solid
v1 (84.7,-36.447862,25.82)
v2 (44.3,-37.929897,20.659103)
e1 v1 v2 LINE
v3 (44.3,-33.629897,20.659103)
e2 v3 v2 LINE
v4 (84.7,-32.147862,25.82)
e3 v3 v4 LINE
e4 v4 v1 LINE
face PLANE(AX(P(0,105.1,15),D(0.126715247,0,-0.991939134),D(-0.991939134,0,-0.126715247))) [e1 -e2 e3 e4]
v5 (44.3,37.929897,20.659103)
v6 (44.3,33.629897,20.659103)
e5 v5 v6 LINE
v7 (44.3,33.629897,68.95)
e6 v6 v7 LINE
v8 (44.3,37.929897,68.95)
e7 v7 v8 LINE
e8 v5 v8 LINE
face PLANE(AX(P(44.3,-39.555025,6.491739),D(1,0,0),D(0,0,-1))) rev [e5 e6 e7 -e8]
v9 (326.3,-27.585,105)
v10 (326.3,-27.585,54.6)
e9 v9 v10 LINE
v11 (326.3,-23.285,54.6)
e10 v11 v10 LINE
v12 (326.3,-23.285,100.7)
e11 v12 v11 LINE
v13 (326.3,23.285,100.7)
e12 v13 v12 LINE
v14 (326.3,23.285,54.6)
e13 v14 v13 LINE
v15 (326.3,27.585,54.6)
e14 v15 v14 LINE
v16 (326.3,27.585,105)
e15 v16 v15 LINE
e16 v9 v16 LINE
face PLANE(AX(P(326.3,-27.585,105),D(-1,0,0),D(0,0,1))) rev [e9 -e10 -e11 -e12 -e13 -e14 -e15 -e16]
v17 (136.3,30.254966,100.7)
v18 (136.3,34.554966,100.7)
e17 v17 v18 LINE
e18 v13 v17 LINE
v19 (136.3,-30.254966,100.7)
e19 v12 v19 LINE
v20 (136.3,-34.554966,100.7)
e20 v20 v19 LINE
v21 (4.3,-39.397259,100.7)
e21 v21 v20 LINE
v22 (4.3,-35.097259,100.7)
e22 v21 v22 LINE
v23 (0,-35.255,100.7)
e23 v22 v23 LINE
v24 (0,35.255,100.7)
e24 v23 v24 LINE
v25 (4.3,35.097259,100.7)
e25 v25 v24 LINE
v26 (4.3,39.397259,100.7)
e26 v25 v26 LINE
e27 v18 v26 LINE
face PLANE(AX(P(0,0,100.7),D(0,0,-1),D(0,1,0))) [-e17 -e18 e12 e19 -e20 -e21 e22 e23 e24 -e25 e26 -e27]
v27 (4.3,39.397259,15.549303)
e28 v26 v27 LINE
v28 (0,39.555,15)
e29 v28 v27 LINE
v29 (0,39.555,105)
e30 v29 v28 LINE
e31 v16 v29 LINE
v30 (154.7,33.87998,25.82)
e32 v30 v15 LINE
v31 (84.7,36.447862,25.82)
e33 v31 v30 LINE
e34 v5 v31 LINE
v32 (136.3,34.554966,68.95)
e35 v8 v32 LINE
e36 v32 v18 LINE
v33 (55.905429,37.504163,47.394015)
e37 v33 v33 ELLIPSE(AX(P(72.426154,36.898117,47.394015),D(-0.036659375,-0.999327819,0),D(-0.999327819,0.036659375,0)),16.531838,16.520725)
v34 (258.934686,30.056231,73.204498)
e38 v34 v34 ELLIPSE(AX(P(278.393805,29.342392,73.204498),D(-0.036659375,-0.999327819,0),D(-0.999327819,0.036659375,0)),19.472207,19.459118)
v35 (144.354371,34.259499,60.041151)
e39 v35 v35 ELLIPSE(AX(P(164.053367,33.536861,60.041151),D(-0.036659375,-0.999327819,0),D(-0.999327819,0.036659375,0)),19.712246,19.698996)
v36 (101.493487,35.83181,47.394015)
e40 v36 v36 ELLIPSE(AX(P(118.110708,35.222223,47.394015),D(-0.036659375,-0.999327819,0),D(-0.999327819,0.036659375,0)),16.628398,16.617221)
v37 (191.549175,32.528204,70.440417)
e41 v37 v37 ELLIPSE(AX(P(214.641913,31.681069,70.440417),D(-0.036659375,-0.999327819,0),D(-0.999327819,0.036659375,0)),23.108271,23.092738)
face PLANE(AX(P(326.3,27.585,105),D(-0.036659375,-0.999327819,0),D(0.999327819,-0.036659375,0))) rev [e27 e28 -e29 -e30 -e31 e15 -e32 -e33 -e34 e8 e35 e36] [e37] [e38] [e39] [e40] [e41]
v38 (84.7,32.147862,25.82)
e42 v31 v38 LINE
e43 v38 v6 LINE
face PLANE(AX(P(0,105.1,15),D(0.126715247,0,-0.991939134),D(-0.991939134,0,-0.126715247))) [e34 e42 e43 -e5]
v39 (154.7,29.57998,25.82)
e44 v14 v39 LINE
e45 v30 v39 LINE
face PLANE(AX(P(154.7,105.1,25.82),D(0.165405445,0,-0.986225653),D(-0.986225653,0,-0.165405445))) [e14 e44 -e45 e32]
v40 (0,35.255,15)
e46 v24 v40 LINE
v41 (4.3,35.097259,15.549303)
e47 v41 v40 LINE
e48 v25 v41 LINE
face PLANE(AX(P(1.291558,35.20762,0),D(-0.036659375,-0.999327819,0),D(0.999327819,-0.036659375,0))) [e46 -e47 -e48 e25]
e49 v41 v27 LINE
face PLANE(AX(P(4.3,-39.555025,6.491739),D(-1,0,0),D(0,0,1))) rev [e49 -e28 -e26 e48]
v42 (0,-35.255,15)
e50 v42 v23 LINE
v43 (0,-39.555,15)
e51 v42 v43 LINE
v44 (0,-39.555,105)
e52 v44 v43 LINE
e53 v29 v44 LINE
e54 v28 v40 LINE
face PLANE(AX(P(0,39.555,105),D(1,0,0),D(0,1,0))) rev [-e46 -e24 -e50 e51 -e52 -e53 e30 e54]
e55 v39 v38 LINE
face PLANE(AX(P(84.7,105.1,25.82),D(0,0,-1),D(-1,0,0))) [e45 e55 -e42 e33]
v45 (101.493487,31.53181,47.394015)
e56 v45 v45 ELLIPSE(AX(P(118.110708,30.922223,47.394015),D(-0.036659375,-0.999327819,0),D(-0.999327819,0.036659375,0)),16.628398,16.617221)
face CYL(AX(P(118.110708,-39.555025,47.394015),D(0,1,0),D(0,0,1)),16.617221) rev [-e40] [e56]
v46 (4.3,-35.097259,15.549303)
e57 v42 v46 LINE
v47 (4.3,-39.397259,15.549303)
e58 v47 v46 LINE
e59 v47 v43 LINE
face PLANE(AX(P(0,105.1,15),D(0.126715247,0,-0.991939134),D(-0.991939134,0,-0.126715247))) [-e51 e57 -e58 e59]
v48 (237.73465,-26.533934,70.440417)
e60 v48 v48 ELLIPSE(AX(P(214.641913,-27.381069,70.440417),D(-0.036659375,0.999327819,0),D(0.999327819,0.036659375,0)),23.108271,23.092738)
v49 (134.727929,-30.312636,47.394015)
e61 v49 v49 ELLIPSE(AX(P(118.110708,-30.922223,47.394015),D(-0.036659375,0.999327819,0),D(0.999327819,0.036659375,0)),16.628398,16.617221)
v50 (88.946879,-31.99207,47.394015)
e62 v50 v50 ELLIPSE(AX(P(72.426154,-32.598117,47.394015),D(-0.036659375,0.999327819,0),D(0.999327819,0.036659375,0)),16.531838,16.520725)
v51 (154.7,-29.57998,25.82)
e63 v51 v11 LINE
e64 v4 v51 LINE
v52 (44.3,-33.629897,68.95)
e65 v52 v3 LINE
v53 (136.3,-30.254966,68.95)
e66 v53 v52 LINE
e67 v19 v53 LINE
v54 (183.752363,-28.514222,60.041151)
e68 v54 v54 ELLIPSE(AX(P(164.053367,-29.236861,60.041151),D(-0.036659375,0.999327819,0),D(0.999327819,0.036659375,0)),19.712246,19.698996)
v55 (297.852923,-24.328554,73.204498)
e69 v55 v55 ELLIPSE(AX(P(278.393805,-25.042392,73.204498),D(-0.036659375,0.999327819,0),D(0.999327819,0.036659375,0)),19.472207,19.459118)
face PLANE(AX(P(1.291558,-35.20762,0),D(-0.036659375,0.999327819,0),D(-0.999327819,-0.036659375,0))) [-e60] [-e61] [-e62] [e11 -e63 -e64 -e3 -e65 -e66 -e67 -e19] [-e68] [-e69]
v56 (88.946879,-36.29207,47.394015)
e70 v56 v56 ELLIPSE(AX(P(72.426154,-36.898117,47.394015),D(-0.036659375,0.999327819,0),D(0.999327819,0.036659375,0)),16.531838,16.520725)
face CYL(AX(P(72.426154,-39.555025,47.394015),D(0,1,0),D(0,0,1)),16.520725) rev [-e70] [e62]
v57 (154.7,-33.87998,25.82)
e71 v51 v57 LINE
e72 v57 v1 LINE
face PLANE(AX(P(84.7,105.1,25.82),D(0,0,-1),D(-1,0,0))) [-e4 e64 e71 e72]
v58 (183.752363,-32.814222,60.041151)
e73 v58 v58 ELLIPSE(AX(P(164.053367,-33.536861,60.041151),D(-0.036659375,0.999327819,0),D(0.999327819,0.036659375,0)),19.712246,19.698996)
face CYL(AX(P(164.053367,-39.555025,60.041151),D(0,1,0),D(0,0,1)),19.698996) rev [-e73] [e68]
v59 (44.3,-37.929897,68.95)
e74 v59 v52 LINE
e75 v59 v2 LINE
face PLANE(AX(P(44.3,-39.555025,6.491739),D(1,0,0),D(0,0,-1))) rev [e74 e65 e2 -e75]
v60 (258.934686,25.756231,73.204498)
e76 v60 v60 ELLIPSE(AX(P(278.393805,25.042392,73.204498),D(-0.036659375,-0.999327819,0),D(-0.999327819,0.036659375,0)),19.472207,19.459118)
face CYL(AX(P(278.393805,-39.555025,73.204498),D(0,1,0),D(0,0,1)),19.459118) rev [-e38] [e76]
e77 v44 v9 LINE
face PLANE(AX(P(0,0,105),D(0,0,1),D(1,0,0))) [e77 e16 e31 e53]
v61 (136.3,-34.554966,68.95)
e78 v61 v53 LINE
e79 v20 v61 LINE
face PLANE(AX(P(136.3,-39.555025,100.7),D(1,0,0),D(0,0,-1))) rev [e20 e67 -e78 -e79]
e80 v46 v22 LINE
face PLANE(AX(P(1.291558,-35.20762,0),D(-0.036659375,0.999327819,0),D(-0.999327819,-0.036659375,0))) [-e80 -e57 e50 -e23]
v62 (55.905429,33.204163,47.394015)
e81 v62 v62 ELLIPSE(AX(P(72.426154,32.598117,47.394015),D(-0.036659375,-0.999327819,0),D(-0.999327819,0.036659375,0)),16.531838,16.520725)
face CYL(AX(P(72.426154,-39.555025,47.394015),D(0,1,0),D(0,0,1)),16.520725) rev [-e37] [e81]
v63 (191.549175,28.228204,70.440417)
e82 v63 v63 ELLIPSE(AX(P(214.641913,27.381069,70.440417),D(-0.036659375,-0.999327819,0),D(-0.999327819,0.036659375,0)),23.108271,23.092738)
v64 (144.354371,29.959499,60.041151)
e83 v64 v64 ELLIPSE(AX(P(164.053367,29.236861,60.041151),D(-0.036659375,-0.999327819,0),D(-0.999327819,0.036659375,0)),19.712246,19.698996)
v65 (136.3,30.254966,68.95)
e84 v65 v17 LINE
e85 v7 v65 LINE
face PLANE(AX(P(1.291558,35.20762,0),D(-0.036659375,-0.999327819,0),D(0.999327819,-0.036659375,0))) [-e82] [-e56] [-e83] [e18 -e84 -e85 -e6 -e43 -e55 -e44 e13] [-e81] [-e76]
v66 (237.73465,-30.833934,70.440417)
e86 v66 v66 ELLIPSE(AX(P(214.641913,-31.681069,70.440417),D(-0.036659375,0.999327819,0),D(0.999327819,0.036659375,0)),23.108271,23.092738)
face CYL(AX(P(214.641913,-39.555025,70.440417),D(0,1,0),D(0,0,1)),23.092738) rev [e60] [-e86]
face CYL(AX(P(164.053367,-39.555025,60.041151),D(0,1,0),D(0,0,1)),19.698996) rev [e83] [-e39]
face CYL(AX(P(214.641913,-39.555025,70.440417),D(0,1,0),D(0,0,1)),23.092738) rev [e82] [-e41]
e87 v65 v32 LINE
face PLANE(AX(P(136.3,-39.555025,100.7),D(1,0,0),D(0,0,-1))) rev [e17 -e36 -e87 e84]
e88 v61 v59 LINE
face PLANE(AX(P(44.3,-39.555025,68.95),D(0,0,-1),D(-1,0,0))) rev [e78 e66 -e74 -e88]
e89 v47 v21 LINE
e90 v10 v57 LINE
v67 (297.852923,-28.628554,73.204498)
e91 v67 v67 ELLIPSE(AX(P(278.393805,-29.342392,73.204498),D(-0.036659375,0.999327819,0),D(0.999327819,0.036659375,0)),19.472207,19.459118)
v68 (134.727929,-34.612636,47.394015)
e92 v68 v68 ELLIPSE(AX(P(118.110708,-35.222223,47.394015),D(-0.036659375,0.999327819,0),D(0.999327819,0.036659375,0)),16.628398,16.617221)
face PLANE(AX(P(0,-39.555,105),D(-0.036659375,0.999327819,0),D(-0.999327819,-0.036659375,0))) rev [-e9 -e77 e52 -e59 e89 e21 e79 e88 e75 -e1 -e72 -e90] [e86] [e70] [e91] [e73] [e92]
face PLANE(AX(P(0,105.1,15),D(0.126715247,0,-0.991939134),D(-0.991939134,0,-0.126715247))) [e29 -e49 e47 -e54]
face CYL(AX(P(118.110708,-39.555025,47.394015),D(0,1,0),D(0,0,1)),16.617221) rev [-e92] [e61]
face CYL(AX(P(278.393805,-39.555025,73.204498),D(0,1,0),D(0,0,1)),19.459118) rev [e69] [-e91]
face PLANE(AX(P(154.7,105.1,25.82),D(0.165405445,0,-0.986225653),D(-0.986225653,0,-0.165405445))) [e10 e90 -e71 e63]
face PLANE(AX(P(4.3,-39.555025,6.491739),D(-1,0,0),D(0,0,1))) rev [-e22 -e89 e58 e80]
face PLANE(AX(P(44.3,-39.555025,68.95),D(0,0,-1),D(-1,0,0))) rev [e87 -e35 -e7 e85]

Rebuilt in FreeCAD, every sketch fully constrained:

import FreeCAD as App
import Part
import Sketcher

V = App.Vector


def add_polygon(sketch, points):
    """Adds a closed chain of lines whose ends are joined by coincident constraints."""
    first, n = sketch.GeometryCount, len(points)
    for a, b in zip(points, points[1:] + points[:1]):
        sketch.addGeometry(Part.LineSegment(App.Vector(*a, 0), App.Vector(*b, 0)), False)
    for i in range(n):
        sketch.addConstraint(Sketcher.Constraint("Coincident", first + i, 2, first + (i + 1) % n, 1))

doc = App.newDocument("Part")
body = doc.addObject("PartDesign::Body", "Body")

# Sketch on XY plane
sketch1 = doc.addObject("Sketcher::SketchObject", "Sketch")
body.addObject(sketch1)
sketch1.AttachmentSupport = (doc.XY_Plane, [""])
sketch1.MapMode = "FlatFace"
add_polygon(sketch1, [(0, 40), (0, -40), (326, -28), (326, 28)])  # lines 0-3
sketch1.addConstraint([
    Sketcher.Constraint("Vertical", 0),
    Sketcher.Constraint("Vertical", 2),
    Sketcher.Constraint("Symmetric", 0, 2, 3, 2, -1, 1),
    Sketcher.Constraint("Equal", 1, 3),
    Sketcher.Constraint("DistanceY", 0, 2, 0, 1, 79.11),
    Sketcher.Constraint("DistanceY", 2, 1, 2, 2, 55.17),
    Sketcher.Constraint("DistanceX", -1, 1, 1, 2, 326.3),
])
pad1 = doc.addObject("PartDesign::Pad", "Pad")
body.addObject(pad1)
pad1.Profile = sketch1
pad1.Length = 105

# Sketch on XZ plane
sketch2 = doc.addObject("Sketcher::SketchObject", "Sketch001")
body.addObject(sketch2)
sketch2.AttachmentSupport = (doc.XZ_Plane, [""])
sketch2.MapMode = "FlatFace"
add_polygon(sketch2, [(0, 15), (85, 26), (155, 26), (326, 55), (326, -36), (0, -41)])  # lines 0-5
sketch2.addConstraint([
    Sketcher.Constraint("Horizontal", 1),
    Sketcher.Constraint("Vertical", 3),
    Sketcher.Constraint("Vertical", 5),
    Sketcher.Constraint("PointOnObject", 4, 2, -2),
    Sketcher.Constraint("DistanceX", 1, 1, 1, 2, 70.0),
    Sketcher.Constraint("DistanceY", -1, 1, 5, 2, 15.0),
    Sketcher.Constraint("DistanceX", -1, 1, 0, 2, 84.7),
    Sketcher.Constraint("DistanceX", -1, 1, 2, 2, 326.3),
    Sketcher.Constraint("DistanceY", -1, 1, 2, 2, 54.6),
    Sketcher.Constraint("DistanceY", -1, 1, 0, 2, 25.82),
    Sketcher.Constraint("DistanceY", 3, 2, 3, 1, 90.679012),
    Sketcher.Constraint("DistanceY", 5, 1, 5, 2, 56.11386),
])
pocket1 = doc.addObject("PartDesign::Pocket", "Pocket")
body.addObject(pocket1)
pocket1.Profile = sketch2
pocket1.Type = "ThroughAll"
pocket1.Midplane = True

# Sketch on YZ plane
sketch3 = doc.addObject("Sketcher::SketchObject", "Sketch002")
body.addObject(sketch3)
sketch3.AttachmentSupport = (doc.YZ_Plane, [""])
sketch3.MapMode = "FlatFace"
sketch3.AttachmentOffset = App.Placement(V(0, 0, 326.3), App.Rotation())
add_polygon(sketch3, [(23, 101), (-23, 101), (-23, 23), (23, 23)])  # lines 0-3
sketch3.addConstraint([
    Sketcher.Constraint("Horizontal", 0),
    Sketcher.Constraint("Vertical", 1),
    Sketcher.Constraint("Horizontal", 2),
    Sketcher.Constraint("Vertical", 3),
    Sketcher.Constraint("DistanceX", 0, 2, 0, 1, 46.57),
    Sketcher.Constraint("DistanceY", -1, 1, 0, 2, 100.7),
    Sketcher.Constraint("DistanceX", 0, 2, -1, 1, 23.285),
    Sketcher.Constraint("DistanceY", 1, 2, 1, 1, 78.145476),
])

# Sketch on YZ plane
sketch4 = doc.addObject("Sketcher::SketchObject", "Sketch003")
body.addObject(sketch4)
sketch4.AttachmentSupport = (doc.YZ_Plane, [""])
sketch4.MapMode = "FlatFace"
add_polygon(sketch4, [(35, -11), (-35, -11), (-35, 101), (35, 101)])  # lines 0-3
sketch4.addConstraint([
    Sketcher.Constraint("Horizontal", 0),
    Sketcher.Constraint("Vertical", 1),
    Sketcher.Constraint("Horizontal", 2),
    Sketcher.Constraint("Vertical", 3),
    Sketcher.Constraint("DistanceX", 0, 2, 0, 1, 70.51),
    Sketcher.Constraint("DistanceY", -1, 1, 1, 2, 100.7),
    Sketcher.Constraint("DistanceX", 0, 2, -1, 1, 35.255),
    Sketcher.Constraint("DistanceY", 1, 1, 1, 2, 111.656528),
])

subtractiveloft = doc.addObject("PartDesign::SubtractiveLoft", "SubtractiveLoft")
body.addObject(subtractiveloft)
subtractiveloft.Profile = sketch3
subtractiveloft.Sections = [sketch4]

# Sketch on XZ plane
sketch5 = doc.addObject("Sketcher::SketchObject", "Sketch004")
body.addObject(sketch5)
sketch5.AttachmentSupport = (doc.XZ_Plane, [""])
sketch5.MapMode = "FlatFace"
sketch5.addGeometry([
    Part.Circle(V(215, 70, 0), V(0, 0, 1), 23),
    Part.Circle(V(278, 73, 0), V(0, 0, 1), 19),
], False)
sketch5.addConstraint([
    Sketcher.Constraint("Diameter", 0, 46.185475),
    Sketcher.Constraint("Diameter", 1, 38.918237),
    Sketcher.Constraint("DistanceX", 0, 3, 1, 3, 63.751892),
    Sketcher.Constraint("DistanceY", 0, 3, 1, 3, 2.76408),
    Sketcher.Constraint("DistanceX", -1, 1, 0, 3, 214.641913),
    Sketcher.Constraint("DistanceY", -1, 1, 0, 3, 70.440417),
])
pocket2 = doc.addObject("PartDesign::Pocket", "Pocket001")
body.addObject(pocket2)
pocket2.Profile = sketch5
pocket2.Type = "ThroughAll"
pocket2.Midplane = True

# Sketch on XZ plane
sketch6 = doc.addObject("Sketcher::SketchObject", "Sketch005")
body.addObject(sketch6)
sketch6.AttachmentSupport = (doc.XZ_Plane, [""])
sketch6.MapMode = "FlatFace"
sketch6.addGeometry(Part.Circle(V(118, 47, 0), V(0, 0, 1), 17), False)  # 0
sketch6.addGeometry(Part.Circle(V(72, 47, 0), V(0, 0, 1), 17), False)  # 1
sketch6.addGeometry(Part.Circle(V(164, 60, 0), V(0, 0, 1), 20), False)  # 2
add_polygon(sketch6, [(44, 6), (4, 6), (4, 101), (136, 101), (136, 69), (44, 69)])  # lines 3-8
sketch6.addConstraint([
    Sketcher.Constraint("Horizontal", 3),
    Sketcher.Constraint("Vertical", 4),
    Sketcher.Constraint("Horizontal", 5),
    Sketcher.Constraint("Vertical", 6),
    Sketcher.Constraint("Horizontal", 7),
    Sketcher.Constraint("Vertical", 8),
    Sketcher.Constraint("Horizontal", 0, 3, 1, 3),
    Sketcher.Constraint("DistanceX", 3, 2, 3, 1, 40.0),
    Sketcher.Constraint("DistanceX", 5, 1, 5, 2, 132.0),
    Sketcher.Constraint("DistanceY", 6, 2, 6, 1, 31.75),
    Sketcher.Constraint("DistanceX", -1, 1, 3, 2, 4.3),
    Sketcher.Constraint("DistanceY", -1, 1, 4, 2, 100.7),
    Sketcher.Constraint("Diameter", 0, 33.234442),
    Sketcher.Constraint("Diameter", 1, 33.04145),
    Sketcher.Constraint("Diameter", 2, 39.397992),
    Sketcher.Constraint("DistanceY", 4, 1, 4, 2, 94.208261),
    Sketcher.Constraint("DistanceY", -1, 1, 2, 3, 60.041151),
    Sketcher.Constraint("DistanceX", 0, 3, 2, 3, 45.942659),
    Sketcher.Constraint("DistanceX", -1, 1, 0, 3, 118.110708),
    Sketcher.Constraint("DistanceY", -1, 1, 0, 3, 47.394015),
    Sketcher.Constraint("DistanceX", -1, 1, 1, 3, 72.426154),
])
pocket3 = doc.addObject("PartDesign::Pocket", "Pocket002")
body.addObject(pocket3)
pocket3.Profile = sketch6
pocket3.Type = "ThroughAll"
pocket3.Midplane = True

doc.recompute()
